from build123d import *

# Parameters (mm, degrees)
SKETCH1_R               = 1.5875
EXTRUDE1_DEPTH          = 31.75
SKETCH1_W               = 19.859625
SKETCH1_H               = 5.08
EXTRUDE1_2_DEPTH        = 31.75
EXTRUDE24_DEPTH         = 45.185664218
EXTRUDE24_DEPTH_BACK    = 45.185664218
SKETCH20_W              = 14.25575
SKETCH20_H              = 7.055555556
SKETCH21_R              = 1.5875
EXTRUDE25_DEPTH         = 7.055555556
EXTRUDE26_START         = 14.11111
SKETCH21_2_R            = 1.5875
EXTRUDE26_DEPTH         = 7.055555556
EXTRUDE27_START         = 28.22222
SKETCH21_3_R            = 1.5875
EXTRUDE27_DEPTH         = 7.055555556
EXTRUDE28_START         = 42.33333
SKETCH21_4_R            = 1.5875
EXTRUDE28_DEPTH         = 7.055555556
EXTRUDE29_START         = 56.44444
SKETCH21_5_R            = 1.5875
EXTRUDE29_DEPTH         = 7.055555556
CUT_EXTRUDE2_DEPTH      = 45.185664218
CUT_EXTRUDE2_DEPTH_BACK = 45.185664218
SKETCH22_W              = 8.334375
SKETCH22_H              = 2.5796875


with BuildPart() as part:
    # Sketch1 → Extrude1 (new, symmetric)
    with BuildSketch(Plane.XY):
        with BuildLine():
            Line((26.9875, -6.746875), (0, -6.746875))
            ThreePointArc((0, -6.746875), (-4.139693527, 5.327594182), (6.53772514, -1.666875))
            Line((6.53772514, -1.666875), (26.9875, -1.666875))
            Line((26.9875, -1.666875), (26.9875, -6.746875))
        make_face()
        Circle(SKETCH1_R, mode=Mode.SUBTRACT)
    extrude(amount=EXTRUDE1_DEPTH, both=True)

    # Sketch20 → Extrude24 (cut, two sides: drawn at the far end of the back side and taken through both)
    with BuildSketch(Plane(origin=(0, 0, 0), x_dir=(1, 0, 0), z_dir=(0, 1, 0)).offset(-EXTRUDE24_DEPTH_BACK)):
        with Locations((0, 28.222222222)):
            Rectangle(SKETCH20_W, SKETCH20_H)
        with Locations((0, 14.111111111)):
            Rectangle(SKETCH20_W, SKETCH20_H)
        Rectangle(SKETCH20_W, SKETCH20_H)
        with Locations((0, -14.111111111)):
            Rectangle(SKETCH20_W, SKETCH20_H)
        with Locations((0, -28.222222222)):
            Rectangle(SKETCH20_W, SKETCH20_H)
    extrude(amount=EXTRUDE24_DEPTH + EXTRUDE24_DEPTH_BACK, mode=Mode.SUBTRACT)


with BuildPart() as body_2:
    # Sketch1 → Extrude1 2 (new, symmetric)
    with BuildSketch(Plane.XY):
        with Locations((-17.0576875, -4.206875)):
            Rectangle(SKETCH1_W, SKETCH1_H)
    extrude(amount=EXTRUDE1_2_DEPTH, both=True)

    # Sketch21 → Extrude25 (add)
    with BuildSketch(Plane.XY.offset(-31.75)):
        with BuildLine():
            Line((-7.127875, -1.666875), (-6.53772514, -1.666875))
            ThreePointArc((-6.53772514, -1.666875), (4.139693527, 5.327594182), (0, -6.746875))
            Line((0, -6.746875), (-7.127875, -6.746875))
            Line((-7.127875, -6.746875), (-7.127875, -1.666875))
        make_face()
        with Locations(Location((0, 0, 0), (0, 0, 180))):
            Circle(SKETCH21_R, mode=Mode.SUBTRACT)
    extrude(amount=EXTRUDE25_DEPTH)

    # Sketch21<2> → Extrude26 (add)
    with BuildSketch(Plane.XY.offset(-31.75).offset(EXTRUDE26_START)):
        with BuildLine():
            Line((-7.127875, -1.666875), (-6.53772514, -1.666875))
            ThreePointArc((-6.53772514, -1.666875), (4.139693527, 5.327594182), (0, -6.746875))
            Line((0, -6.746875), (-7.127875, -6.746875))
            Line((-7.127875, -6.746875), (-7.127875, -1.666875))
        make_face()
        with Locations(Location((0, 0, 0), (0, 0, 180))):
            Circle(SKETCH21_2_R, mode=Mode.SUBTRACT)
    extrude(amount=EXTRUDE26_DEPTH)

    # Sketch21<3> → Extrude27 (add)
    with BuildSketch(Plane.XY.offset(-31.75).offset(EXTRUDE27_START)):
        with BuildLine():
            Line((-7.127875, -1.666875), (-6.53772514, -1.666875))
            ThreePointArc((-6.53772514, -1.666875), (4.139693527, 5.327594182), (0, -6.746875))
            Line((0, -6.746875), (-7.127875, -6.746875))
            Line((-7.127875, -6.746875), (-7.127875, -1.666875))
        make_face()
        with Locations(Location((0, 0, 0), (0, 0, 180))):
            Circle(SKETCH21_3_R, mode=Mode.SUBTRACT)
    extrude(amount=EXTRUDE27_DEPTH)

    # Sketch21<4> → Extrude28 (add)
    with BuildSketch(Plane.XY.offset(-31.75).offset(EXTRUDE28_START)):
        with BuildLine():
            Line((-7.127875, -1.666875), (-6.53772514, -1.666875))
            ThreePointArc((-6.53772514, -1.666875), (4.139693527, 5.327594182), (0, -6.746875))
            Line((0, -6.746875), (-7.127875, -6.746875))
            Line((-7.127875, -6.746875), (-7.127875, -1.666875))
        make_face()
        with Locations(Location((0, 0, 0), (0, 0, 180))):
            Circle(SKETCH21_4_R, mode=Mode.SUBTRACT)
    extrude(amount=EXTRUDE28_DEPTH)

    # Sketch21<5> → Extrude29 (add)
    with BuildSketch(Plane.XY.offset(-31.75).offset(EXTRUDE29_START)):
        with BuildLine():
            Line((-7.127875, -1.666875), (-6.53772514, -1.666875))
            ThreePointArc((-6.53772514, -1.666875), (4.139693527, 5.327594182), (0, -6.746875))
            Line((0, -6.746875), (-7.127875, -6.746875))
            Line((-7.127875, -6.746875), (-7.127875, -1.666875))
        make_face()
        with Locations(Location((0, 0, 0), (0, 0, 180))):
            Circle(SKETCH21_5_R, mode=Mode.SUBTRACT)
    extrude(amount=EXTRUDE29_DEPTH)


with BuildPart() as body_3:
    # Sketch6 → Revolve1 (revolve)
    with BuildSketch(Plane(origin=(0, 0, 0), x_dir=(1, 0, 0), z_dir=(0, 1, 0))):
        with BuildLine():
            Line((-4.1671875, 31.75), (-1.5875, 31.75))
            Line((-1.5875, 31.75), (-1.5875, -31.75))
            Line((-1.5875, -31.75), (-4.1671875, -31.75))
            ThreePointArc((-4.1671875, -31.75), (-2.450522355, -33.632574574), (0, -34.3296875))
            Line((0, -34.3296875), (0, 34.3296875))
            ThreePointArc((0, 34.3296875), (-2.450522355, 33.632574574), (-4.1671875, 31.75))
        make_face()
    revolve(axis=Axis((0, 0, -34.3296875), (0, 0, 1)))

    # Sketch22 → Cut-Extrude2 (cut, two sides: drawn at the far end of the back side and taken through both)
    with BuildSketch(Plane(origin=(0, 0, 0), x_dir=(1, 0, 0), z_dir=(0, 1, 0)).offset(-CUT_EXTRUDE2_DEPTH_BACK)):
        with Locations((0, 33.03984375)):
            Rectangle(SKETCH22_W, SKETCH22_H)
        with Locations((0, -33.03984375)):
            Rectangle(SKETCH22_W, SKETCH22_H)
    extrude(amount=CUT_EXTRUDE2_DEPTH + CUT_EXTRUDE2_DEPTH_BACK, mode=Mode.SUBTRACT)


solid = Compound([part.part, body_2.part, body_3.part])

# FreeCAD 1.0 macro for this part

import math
import FreeCAD as App
import Part
import Sketcher

V = App.Vector
Q = App.Units.Quantity


def add_polygon(sketch, points):
    """Adds a closed chain of lines whose ends are joined by coincident constraints."""
    first, n = sketch.GeometryCount, len(points)
    for a, b in zip(points, points[1:] + points[:1]):
        sketch.addGeometry(Part.LineSegment(App.Vector(*a, 0), App.Vector(*b, 0)), False)
    for i in range(n):
        sketch.addConstraint(Sketcher.Constraint("Coincident", first + i, 2, first + (i + 1) % n, 1))

doc = App.newDocument("Part")
body = doc.addObject("PartDesign::Body", "Body")

sketch1 = body.newObject("Sketcher::SketchObject", "Sketch")
sketch1.AttachmentSupport = (doc.getObject("XY_Plane"), [""])
sketch1.MapMode = "FlatFace"
sketch1.addGeometry([
    Part.LineSegment(V(0, -6.7, 0), V(27, -6.7, 0)),
    Part.LineSegment(V(27, -6.7, 0), V(27, -1.7, 0)),
    Part.LineSegment(V(27, -1.7, 0), V(6.5, -1.7, 0)),
    Part.ArcOfCircle(Part.Circle(V(0, 0, 0), V(0, 0, 1), 6.7), math.radians(-14), math.radians(270)),
    Part.Circle(V(0, 0, 0), V(0, 0, 1), 1.6),
], False)
sketch1.addConstraint([
    Sketcher.Constraint("Coincident", 0, 2, 1, 1),
    Sketcher.Constraint("Coincident", 1, 2, 2, 1),
    Sketcher.Constraint("Coincident", 2, 2, 3, 1),
    Sketcher.Constraint("Tangent", 3, 2, 0, 1),
    Sketcher.Constraint("Horizontal", 0),
    Sketcher.Constraint("Vertical", 1),
    Sketcher.Constraint("Horizontal", 2),
    Sketcher.Constraint("Coincident", 3, 3, -1, 1),
    Sketcher.Constraint("Coincident", 4, 3, -1, 1),
    Sketcher.Constraint("Diameter", 4, Q("0.125 in")),
    Sketcher.Constraint("DistanceY", 1, 1, 1, 2, Q("0.2 in")),
    Sketcher.Constraint("Radius", 3, Q("0.265625 in")),
    Sketcher.Constraint("DistanceX", 0, 1, 0, 2, Q("1.0625 in")),
])
pad1 = body.newObject("PartDesign::Pad", "Pad")
pad1.Profile = sketch1
pad1.Length = Q("2.5 in")
pad1.Midplane = True

sketch2 = body.newObject("Sketcher::SketchObject", "Sketch001")
sketch2.AttachmentSupport = (doc.getObject("XZ_Plane"), [""])
sketch2.MapMode = "FlatFace"
add_polygon(sketch2, [(-7, -32), (-7, -25), (7, -25), (7, -32)])
add_polygon(sketch2, [(-7, -18), (-7, -11), (7, -11), (7, -18)])
add_polygon(sketch2, [(-7, -4), (-7, 4), (7, 4), (7, -4)])
add_polygon(sketch2, [(-7, 11), (-7, 18), (7, 18), (7, 11)])
add_polygon(sketch2, [(-7, 25), (-7, 32), (7, 32), (7, 25)])
sketch2.addConstraint([
    Sketcher.Constraint("Vertical", 0),
    Sketcher.Constraint("Horizontal", 1),
    Sketcher.Constraint("Vertical", 2),
    Sketcher.Constraint("Horizontal", 3),
    Sketcher.Constraint("Vertical", 4),
    Sketcher.Constraint("Horizontal", 5),
    Sketcher.Constraint("Vertical", 6),
    Sketcher.Constraint("Horizontal", 7),
    Sketcher.Constraint("Vertical", 8),
    Sketcher.Constraint("Horizontal", 9),
    Sketcher.Constraint("Vertical", 10),
    Sketcher.Constraint("Horizontal", 11),
    Sketcher.Constraint("Vertical", 12),
    Sketcher.Constraint("Horizontal", 13),
    Sketcher.Constraint("Vertical", 14),
    Sketcher.Constraint("Horizontal", 15),
    Sketcher.Constraint("Vertical", 16),
    Sketcher.Constraint("Horizontal", 17),
    Sketcher.Constraint("Vertical", 18),
    Sketcher.Constraint("Horizontal", 19),
    Sketcher.Constraint("Symmetric", 8, 2, 10, 2, -1, 1),
    Sketcher.Constraint("Symmetric", 6, 2, 12, 2, -1, 1),
    Sketcher.Constraint("Symmetric", 4, 2, 14, 2, -1, 1),
    Sketcher.Constraint("Symmetric", 2, 2, 16, 2, -1, 1),
    Sketcher.Constraint("Symmetric", 0, 2, 18, 2, -1, 1),
    Sketcher.Constraint("Vertical", 3, 2, 4, 2),
    Sketcher.Constraint("Vertical", 2, 2, 5, 2),
    Sketcher.Constraint("Vertical", 7, 2, 8, 2),
    Sketcher.Constraint("Vertical", 6, 2, 9, 2),
    Sketcher.Constraint("Equal", 2, 4),
    Sketcher.Constraint("Equal", 6, 8),
    Sketcher.Constraint("DistanceY", 2, 2, -1, 1, Q("1.25 in")),
    Sketcher.Constraint("DistanceX", 1, 1, 1, 2, 14.25575),
    Sketcher.Constraint("DistanceY", 0, 1, 0, 2, 7.055556),
    Sketcher.Constraint("DistanceY", 6, 2, -1, 1, 17.638889),
])
pocket1 = body.newObject("PartDesign::Pocket", "Pocket")
pocket1.Profile = sketch2
pocket1.Type = "ThroughAll"
pocket1.Midplane = True
body2 = doc.addObject("PartDesign::Body", "Body001")

sketch3 = body2.newObject("Sketcher::SketchObject", "Sketch002")
sketch3.AttachmentSupport = (doc.getObject("XY_Plane001"), [""])
sketch3.MapMode = "FlatFace"
add_polygon(sketch3, [(-27, -2), (-27, -7), (-7, -7), (-7, -2)])
sketch3.addConstraint([
    Sketcher.Constraint("Vertical", 0),
    Sketcher.Constraint("Horizontal", 1),
    Sketcher.Constraint("Vertical", 2),
    Sketcher.Constraint("Horizontal", 3),
    Sketcher.Constraint("DistanceY", 0, 2, 0, 1, Q("0.2 in")),
    Sketcher.Constraint("DistanceX", 0, 2, -1, 1, Q("1.0625 in")),
    Sketcher.Constraint("DistanceY", 0, 2, -1, 1, Q("0.265625 in")),
    Sketcher.Constraint("DistanceX", 1, 1, 1, 2, 19.859625),
])
pad2 = body2.newObject("PartDesign::Pad", "Pad001")
pad2.Profile = sketch3
pad2.Length = Q("2.5 in")
pad2.Midplane = True

sketch4 = body2.newObject("Sketcher::SketchObject", "Sketch003")
sketch4.AttachmentSupport = (doc.getObject("XY_Plane001"), [""])
sketch4.MapMode = "FlatFace"
sketch4.AttachmentOffset = App.Placement(V(0, 0, -1.25 * 25.4), App.Rotation())
sketch4.addGeometry([
    Part.LineSegment(V(-6.5, -1.7, 0), V(-7.1, -1.7, 0)),
    Part.LineSegment(V(-7.1, -1.7, 0), V(-7.1, -6.7, 0)),
    Part.LineSegment(V(-7.1, -6.7, 0), V(0, -6.7, 0)),
    Part.ArcOfCircle(Part.Circle(V(0, 0, 0), V(0, 0, 1), 6.7), math.radians(-90), math.radians(194)),
    Part.Circle(V(0, 0, 0), V(0, 0, 1), 1.6),
], False)
sketch4.addConstraint([
    Sketcher.Constraint("Coincident", 0, 2, 1, 1),
    Sketcher.Constraint("Coincident", 1, 2, 2, 1),
    Sketcher.Constraint("Tangent", 2, 2, 3, 1),
    Sketcher.Constraint("Coincident", 3, 2, 0, 1),
    Sketcher.Constraint("Horizontal", 0),
    Sketcher.Constraint("Vertical", 1),
    Sketcher.Constraint("Horizontal", 2),
    Sketcher.Constraint("Coincident", 3, 3, -1, 1),
    Sketcher.Constraint("Coincident", 4, 3, -1, 1),
    Sketcher.Constraint("Diameter", 4, Q("0.125 in")),
    Sketcher.Constraint("DistanceY", 1, 2, 1, 1, Q("0.2 in")),
    Sketcher.Constraint("Radius", 3, Q("0.265625 in")),
    Sketcher.Constraint("DistanceX", 0, 2, 0, 1, 0.59015),
])
pad3 = body2.newObject("PartDesign::Pad", "Pad002")
pad3.Profile = sketch4
pad3.Length = 7.055556

sketch5 = body2.newObject("Sketcher::SketchObject", "Sketch004")
sketch5.AttachmentSupport = (doc.getObject("XY_Plane001"), [""])
sketch5.MapMode = "FlatFace"
sketch5.AttachmentOffset = App.Placement(V(0, 0, -17.63889), App.Rotation())
sketch5.addGeometry([
    Part.LineSegment(V(-6.5, -1.7, 0), V(-7.1, -1.7, 0)),
    Part.LineSegment(V(-7.1, -1.7, 0), V(-7.1, -6.7, 0)),
    Part.LineSegment(V(-7.1, -6.7, 0), V(0, -6.7, 0)),
    Part.ArcOfCircle(Part.Circle(V(0, 0, 0), V(0, 0, 1), 6.7), math.radians(-90), math.radians(194)),
    Part.Circle(V(0, 0, 0), V(0, 0, 1), 1.6),
], False)
sketch5.addConstraint([
    Sketcher.Constraint("Coincident", 0, 2, 1, 1),
    Sketcher.Constraint("Coincident", 1, 2, 2, 1),
    Sketcher.Constraint("Tangent", 2, 2, 3, 1),
    Sketcher.Constraint("Coincident", 3, 2, 0, 1),
    Sketcher.Constraint("Horizontal", 0),
    Sketcher.Constraint("Vertical", 1),
    Sketcher.Constraint("Horizontal", 2),
    Sketcher.Constraint("Coincident", 3, 3, -1, 1),
    Sketcher.Constraint("Coincident", 4, 3, -1, 1),
    Sketcher.Constraint("Diameter", 4, Q("0.125 in")),
    Sketcher.Constraint("DistanceY", 1, 2, 1, 1, Q("0.2 in")),
    Sketcher.Constraint("Radius", 3, Q("0.265625 in")),
    Sketcher.Constraint("DistanceX", 0, 2, 0, 1, 0.59015),
])
pad4 = body2.newObject("PartDesign::Pad", "Pad003")
pad4.Profile = sketch5
pad4.Length = 7.055556

sketch6 = body2.newObject("Sketcher::SketchObject", "Sketch005")
sketch6.AttachmentSupport = (doc.getObject("XY_Plane001"), [""])
sketch6.MapMode = "FlatFace"
sketch6.AttachmentOffset = App.Placement(V(0, 0, -3.52778), App.Rotation())
sketch6.addGeometry([
    Part.LineSegment(V(-6.5, -1.7, 0), V(-7.1, -1.7, 0)),
    Part.LineSegment(V(-7.1, -1.7, 0), V(-7.1, -6.7, 0)),
    Part.LineSegment(V(-7.1, -6.7, 0), V(0, -6.7, 0)),
    Part.ArcOfCircle(Part.Circle(V(0, 0, 0), V(0, 0, 1), 6.7), math.radians(-90), math.radians(194)),
    Part.Circle(V(0, 0, 0), V(0, 0, 1), 1.6),
], False)
sketch6.addConstraint([
    Sketcher.Constraint("Coincident", 0, 2, 1, 1),
    Sketcher.Constraint("Coincident", 1, 2, 2, 1),
    Sketcher.Constraint("Tangent", 2, 2, 3, 1),
    Sketcher.Constraint("Coincident", 3, 2, 0, 1),
    Sketcher.Constraint("Horizontal", 0),
    Sketcher.Constraint("Vertical", 1),
    Sketcher.Constraint("Horizontal", 2),
    Sketcher.Constraint("Coincident", 3, 3, -1, 1),
    Sketcher.Constraint("Coincident", 4, 3, -1, 1),
    Sketcher.Constraint("Diameter", 4, Q("0.125 in")),
    Sketcher.Constraint("DistanceY", 1, 2, 1, 1, Q("0.2 in")),
    Sketcher.Constraint("Radius", 3, Q("0.265625 in")),
    Sketcher.Constraint("DistanceX", 0, 2, 0, 1, 0.59015),
])
pad5 = body2.newObject("PartDesign::Pad", "Pad004")
pad5.Profile = sketch6
pad5.Length = 7.055556

sketch7 = body2.newObject("Sketcher::SketchObject", "Sketch006")
sketch7.AttachmentSupport = (doc.getObject("XY_Plane001"), [""])
sketch7.MapMode = "FlatFace"
sketch7.AttachmentOffset = App.Placement(V(0, 0, 10.58333), App.Rotation())
sketch7.addGeometry([
    Part.LineSegment(V(-6.5, -1.7, 0), V(-7.1, -1.7, 0)),
    Part.LineSegment(V(-7.1, -1.7, 0), V(-7.1, -6.7, 0)),
    Part.LineSegment(V(-7.1, -6.7, 0), V(0, -6.7, 0)),
    Part.ArcOfCircle(Part.Circle(V(0, 0, 0), V(0, 0, 1), 6.7), math.radians(-90), math.radians(194)),
    Part.Circle(V(0, 0, 0), V(0, 0, 1), 1.6),
], False)
sketch7.addConstraint([
    Sketcher.Constraint("Coincident", 0, 2, 1, 1),
    Sketcher.Constraint("Coincident", 1, 2, 2, 1),
    Sketcher.Constraint("Tangent", 2, 2, 3, 1),
    Sketcher.Constraint("Coincident", 3, 2, 0, 1),
    Sketcher.Constraint("Horizontal", 0),
    Sketcher.Constraint("Vertical", 1),
    Sketcher.Constraint("Horizontal", 2),
    Sketcher.Constraint("Coincident", 3, 3, -1, 1),
    Sketcher.Constraint("Coincident", 4, 3, -1, 1),
    Sketcher.Constraint("Diameter", 4, Q("0.125 in")),
    Sketcher.Constraint("DistanceY", 1, 2, 1, 1, Q("0.2 in")),
    Sketcher.Constraint("Radius", 3, Q("0.265625 in")),
    Sketcher.Constraint("DistanceX", 0, 2, 0, 1, 0.59015),
])
pad6 = body2.newObject("PartDesign::Pad", "Pad005")
pad6.Profile = sketch7
pad6.Length = 7.055556

sketch8 = body2.newObject("Sketcher::SketchObject", "Sketch007")
sketch8.AttachmentSupport = (doc.getObject("XY_Plane001"), [""])
sketch8.MapMode = "FlatFace"
sketch8.AttachmentOffset = App.Placement(V(0, 0, 24.69444), App.Rotation())
sketch8.addGeometry([
    Part.LineSegment(V(-6.5, -1.7, 0), V(-7.1, -1.7, 0)),
    Part.LineSegment(V(-7.1, -1.7, 0), V(-7.1, -6.7, 0)),
    Part.LineSegment(V(-7.1, -6.7, 0), V(0, -6.7, 0)),
    Part.ArcOfCircle(Part.Circle(V(0, 0, 0), V(0, 0, 1), 6.7), math.radians(-90), math.radians(194)),
    Part.Circle(V(0, 0, 0), V(0, 0, 1), 1.6),
], False)
sketch8.addConstraint([
    Sketcher.Constraint("Coincident", 0, 2, 1, 1),
    Sketcher.Constraint("Coincident", 1, 2, 2, 1),
    Sketcher.Constraint("Tangent", 2, 2, 3, 1),
    Sketcher.Constraint("Coincident", 3, 2, 0, 1),
    Sketcher.Constraint("Horizontal", 0),
    Sketcher.Constraint("Vertical", 1),
    Sketcher.Constraint("Horizontal", 2),
    Sketcher.Constraint("Coincident", 3, 3, -1, 1),
    Sketcher.Constraint("Coincident", 4, 3, -1, 1),
    Sketcher.Constraint("Diameter", 4, Q("0.125 in")),
    Sketcher.Constraint("DistanceY", 1, 2, 1, 1, Q("0.2 in")),
    Sketcher.Constraint("Radius", 3, Q("0.265625 in")),
    Sketcher.Constraint("DistanceX", 0, 2, 0, 1, 0.59015),
])
pad7 = body2.newObject("PartDesign::Pad", "Pad006")
pad7.Profile = sketch8
pad7.Length = 7.055556
body3 = doc.addObject("PartDesign::Body", "Body002")

sketch9 = body3.newObject("Sketcher::SketchObject", "Sketch008")
sketch9.AttachmentSupport = (doc.getObject("XZ_Plane002"), [""])
sketch9.MapMode = "FlatFace"
sketch9.addGeometry([
    Part.LineSegment(V(-4.2, -31.8, 0), V(-1.6, -31.8, 0)),
    Part.LineSegment(V(-1.6, -31.8, 0), V(-1.6, 31.8, 0)),
    Part.LineSegment(V(-1.6, 31.8, 0), V(-4.2, 31.8, 0)),
    Part.ArcOfCircle(Part.Circle(V(0, 29.7, 0), V(0, 0, 1), 4.7), math.radians(90), math.radians(154)),
    Part.LineSegment(V(0, 34.3, 0), V(0, -34.3, 0)),
    Part.ArcOfCircle(Part.Circle(V(0, -29.7, 0), V(0, 0, 1), 4.7), math.radians(-154), math.radians(-90)),
], False)
sketch9.addConstraint([
    Sketcher.Constraint("Coincident", 0, 2, 1, 1),
    Sketcher.Constraint("Coincident", 1, 2, 2, 1),
    Sketcher.Constraint("Coincident", 2, 2, 3, 2),
    Sketcher.Constraint("Coincident", 3, 1, 4, 1),
    Sketcher.Constraint("Coincident", 4, 2, 5, 2),
    Sketcher.Constraint("Coincident", 5, 1, 0, 1),
    Sketcher.Constraint("Horizontal", 0),
    Sketcher.Constraint("Vertical", 1),
    Sketcher.Constraint("Horizontal", 2),
    Sketcher.Constraint("Vertical", 4),
    Sketcher.Constraint("Equal", 3, 5),
    Sketcher.Constraint("Symmetric", 3, 3, 5, 3, -1, 1),
    Sketcher.Constraint("Symmetric", 2, 2, 5, 1, -1),
    Sketcher.Constraint("PointOnObject", 3, 1, -2),
    Sketcher.Constraint("DistanceY", 1, 1, 1, 2, Q("2.5 in")),
    Sketcher.Constraint("DistanceY", 4, 2, 4, 1, Q("2.703125 in")),
    Sketcher.Constraint("DistanceX", 0, 2, -1, 1, Q("0.0625 in")),
    Sketcher.Constraint("Radius", 3, 4.655649),
])
revolution = body3.newObject("PartDesign::Revolution", "Revolution")
revolution.Profile = sketch9
revolution.ReferenceAxis = (sketch9, ["V_Axis"])
revolution.Angle = 360

sketch10 = body3.newObject("Sketcher::SketchObject", "Sketch009")
sketch10.AttachmentSupport = (doc.getObject("XZ_Plane002"), [""])
sketch10.MapMode = "FlatFace"
add_polygon(sketch10, [(-4.2, -34.3), (-4.2, -31.8), (4.2, -31.8), (4.2, -34.3)])
add_polygon(sketch10, [(-4.2, 31.8), (-4.2, 34.3), (4.2, 34.3), (4.2, 31.8)])
sketch10.addConstraint([
    Sketcher.Constraint("Vertical", 0),
    Sketcher.Constraint("Horizontal", 1),
    Sketcher.Constraint("Vertical", 2),
    Sketcher.Constraint("Horizontal", 3),
    Sketcher.Constraint("Vertical", 4),
    Sketcher.Constraint("Horizontal", 5),
    Sketcher.Constraint("Vertical", 6),
    Sketcher.Constraint("Horizontal", 7),
    Sketcher.Constraint("Symmetric", 2, 2, 4, 2, -1, 1),
    Sketcher.Constraint("Symmetric", 0, 2, 6, 2, -1, 1),
    Sketcher.Constraint("Vertical", 3, 2, 4, 2),
    Sketcher.Constraint("DistanceY", 1, 2, 6, 2, Q("2.5 in")),
    Sketcher.Constraint("DistanceX", 1, 1, 1, 2, Q("0.328125 in")),
    Sketcher.Constraint("DistanceY", 3, 2, 4, 2, Q("2.703125 in")),
])
pocket2 = body3.newObject("PartDesign::Pocket", "Pocket001")
pocket2.Profile = sketch10
pocket2.Type = "ThroughAll"
pocket2.Midplane = True

doc.recompute()
